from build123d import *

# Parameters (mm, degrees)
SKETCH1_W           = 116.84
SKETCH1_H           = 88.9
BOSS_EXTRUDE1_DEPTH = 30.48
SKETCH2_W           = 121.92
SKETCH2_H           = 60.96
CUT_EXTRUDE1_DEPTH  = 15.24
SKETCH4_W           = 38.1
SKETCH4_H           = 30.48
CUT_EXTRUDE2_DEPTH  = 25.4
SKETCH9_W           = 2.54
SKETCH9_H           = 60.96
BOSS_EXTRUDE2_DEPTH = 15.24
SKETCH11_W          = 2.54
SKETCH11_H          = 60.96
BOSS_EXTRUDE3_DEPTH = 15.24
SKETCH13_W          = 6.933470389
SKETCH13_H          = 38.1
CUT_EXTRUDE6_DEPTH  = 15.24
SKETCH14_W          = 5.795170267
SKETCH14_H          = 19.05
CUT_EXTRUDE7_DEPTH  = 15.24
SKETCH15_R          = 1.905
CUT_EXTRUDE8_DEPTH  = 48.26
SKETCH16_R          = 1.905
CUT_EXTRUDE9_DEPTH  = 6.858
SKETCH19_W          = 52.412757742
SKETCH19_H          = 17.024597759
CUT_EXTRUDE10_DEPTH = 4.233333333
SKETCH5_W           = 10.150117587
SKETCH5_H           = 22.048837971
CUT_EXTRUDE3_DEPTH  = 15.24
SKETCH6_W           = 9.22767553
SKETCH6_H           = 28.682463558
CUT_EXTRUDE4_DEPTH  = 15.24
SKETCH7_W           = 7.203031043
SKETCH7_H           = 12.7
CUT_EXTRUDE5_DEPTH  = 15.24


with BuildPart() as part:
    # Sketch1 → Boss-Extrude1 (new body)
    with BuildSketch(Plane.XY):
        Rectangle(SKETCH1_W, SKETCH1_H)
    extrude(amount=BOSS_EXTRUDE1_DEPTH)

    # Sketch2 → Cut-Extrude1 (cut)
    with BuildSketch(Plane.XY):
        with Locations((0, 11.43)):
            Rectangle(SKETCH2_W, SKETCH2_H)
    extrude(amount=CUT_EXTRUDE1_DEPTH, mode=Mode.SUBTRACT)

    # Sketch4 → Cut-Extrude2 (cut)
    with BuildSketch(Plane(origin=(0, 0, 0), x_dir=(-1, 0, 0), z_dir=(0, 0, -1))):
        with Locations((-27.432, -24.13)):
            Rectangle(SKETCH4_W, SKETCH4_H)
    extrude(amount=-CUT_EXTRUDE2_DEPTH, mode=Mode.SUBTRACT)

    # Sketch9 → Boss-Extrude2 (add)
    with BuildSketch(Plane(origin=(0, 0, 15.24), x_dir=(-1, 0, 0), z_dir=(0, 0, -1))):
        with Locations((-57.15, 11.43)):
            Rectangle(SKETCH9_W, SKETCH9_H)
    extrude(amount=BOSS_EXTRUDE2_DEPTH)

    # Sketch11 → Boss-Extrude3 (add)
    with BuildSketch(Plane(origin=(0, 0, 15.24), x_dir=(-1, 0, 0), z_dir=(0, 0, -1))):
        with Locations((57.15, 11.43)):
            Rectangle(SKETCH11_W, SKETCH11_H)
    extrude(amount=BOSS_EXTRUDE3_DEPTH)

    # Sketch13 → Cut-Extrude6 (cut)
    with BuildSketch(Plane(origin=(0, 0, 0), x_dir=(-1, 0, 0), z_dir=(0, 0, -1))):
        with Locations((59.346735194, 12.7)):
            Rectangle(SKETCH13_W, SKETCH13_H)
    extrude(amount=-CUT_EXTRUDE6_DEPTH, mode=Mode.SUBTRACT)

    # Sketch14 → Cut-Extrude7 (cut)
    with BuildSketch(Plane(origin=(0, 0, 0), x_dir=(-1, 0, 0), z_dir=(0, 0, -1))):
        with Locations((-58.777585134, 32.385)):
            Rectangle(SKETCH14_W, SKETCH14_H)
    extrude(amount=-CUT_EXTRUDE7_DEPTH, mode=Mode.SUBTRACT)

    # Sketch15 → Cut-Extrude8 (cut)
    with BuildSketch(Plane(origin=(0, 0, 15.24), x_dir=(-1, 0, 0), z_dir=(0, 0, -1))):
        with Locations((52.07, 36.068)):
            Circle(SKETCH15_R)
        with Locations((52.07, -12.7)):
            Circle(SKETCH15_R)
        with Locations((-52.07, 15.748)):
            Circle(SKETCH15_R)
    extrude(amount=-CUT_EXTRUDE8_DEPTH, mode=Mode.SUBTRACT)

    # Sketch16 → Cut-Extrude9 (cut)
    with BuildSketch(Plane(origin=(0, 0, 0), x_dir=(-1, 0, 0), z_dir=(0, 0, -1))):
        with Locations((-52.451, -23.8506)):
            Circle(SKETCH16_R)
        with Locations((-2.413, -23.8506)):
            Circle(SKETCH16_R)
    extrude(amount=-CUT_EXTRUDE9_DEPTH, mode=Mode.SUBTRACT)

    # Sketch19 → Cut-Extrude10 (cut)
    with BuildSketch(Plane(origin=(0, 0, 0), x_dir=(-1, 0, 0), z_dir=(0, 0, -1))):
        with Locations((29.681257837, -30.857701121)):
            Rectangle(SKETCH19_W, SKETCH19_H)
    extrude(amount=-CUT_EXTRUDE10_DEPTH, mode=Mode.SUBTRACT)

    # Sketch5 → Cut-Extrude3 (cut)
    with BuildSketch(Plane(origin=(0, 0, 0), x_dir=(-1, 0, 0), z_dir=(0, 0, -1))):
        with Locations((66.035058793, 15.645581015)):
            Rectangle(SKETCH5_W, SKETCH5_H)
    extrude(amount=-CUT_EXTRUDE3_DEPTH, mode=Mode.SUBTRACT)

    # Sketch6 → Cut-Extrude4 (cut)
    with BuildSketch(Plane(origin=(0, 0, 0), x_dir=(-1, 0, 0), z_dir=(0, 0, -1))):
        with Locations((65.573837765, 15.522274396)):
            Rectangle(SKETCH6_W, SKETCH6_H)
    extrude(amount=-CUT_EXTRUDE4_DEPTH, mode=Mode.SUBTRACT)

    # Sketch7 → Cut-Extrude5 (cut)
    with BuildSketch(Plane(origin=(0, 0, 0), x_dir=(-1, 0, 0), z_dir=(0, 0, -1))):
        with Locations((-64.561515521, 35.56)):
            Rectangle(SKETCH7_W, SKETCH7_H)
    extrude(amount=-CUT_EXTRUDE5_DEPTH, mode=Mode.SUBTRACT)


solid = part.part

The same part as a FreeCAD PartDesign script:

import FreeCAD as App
import Part
import Sketcher

V = App.Vector
Q = App.Units.Quantity

doc = App.newDocument("Part")
body = doc.addObject("PartDesign::Body", "Body")

sketch1 = body.newObject("Sketcher::SketchObject", "Sketch")
sketch1.AttachmentSupport = (doc.getObject("XY_Plane"), [""])
sketch1.MapMode = "FlatFace"
sketch1.addGeometry(Part.LineSegment(V(-58, 44, 0), V(-58, -44, 0)), False)
sketch1.addGeometry(Part.LineSegment(V(-58, -44, 0), V(58, -44, 0)), False)
sketch1.addGeometry(Part.LineSegment(V(58, -44, 0), V(58, 44, 0)), False)
sketch1.addGeometry(Part.LineSegment(V(58, 44, 0), V(-58, 44, 0)), False)
sketch1.addConstraint(Sketcher.Constraint("Coincident", 0, 2, 1, 1))
sketch1.addConstraint(Sketcher.Constraint("Coincident", 1, 2, 2, 1))
sketch1.addConstraint(Sketcher.Constraint("Coincident", 2, 2, 3, 1))
sketch1.addConstraint(Sketcher.Constraint("Coincident", 3, 2, 0, 1))
sketch1.addConstraint(Sketcher.Constraint("Vertical", 0))
sketch1.addConstraint(Sketcher.Constraint("Horizontal", 1))
sketch1.addConstraint(Sketcher.Constraint("Vertical", 2))
sketch1.addConstraint(Sketcher.Constraint("Horizontal", 3))
sketch1.addConstraint(Sketcher.Constraint("Symmetric", 0, 2, 2, 2, -1, 1))
sketch1.addConstraint(Sketcher.Constraint("DistanceX", 1, 1, 1, 2, Q("4.6 in")))
sketch1.addConstraint(Sketcher.Constraint("DistanceY", 0, 2, 0, 1, Q("3.5 in")))
pad1 = body.newObject("PartDesign::Pad", "Pad")
pad1.Profile = sketch1
pad1.Length = Q("1.2 in")

sketch2 = body.newObject("Sketcher::SketchObject", "Sketch001")
sketch2.AttachmentSupport = (doc.getObject("XY_Plane"), [""])
sketch2.MapMode = "FlatFace"
sketch2.addGeometry(Part.LineSegment(V(-61, 42, 0), V(-61, -19, 0)), False)
sketch2.addGeometry(Part.LineSegment(V(-61, -19, 0), V(61, -19, 0)), False)
sketch2.addGeometry(Part.LineSegment(V(61, -19, 0), V(61, 42, 0)), False)
sketch2.addGeometry(Part.LineSegment(V(61, 42, 0), V(-61, 42, 0)), False)
sketch2.addConstraint(Sketcher.Constraint("Coincident", 0, 2, 1, 1))
sketch2.addConstraint(Sketcher.Constraint("Coincident", 1, 2, 2, 1))
sketch2.addConstraint(Sketcher.Constraint("Coincident", 2, 2, 3, 1))
sketch2.addConstraint(Sketcher.Constraint("Coincident", 3, 2, 0, 1))
sketch2.addConstraint(Sketcher.Constraint("Vertical", 0))
sketch2.addConstraint(Sketcher.Constraint("Horizontal", 1))
sketch2.addConstraint(Sketcher.Constraint("Vertical", 2))
sketch2.addConstraint(Sketcher.Constraint("Horizontal", 3))
sketch2.addConstraint(Sketcher.Constraint("DistanceX", 1, 1, 1, 2, Q("4.8 in")))
sketch2.addConstraint(Sketcher.Constraint("DistanceY", 0, 2, 0, 1, Q("2.4 in")))
sketch2.addConstraint(Sketcher.Constraint("DistanceX", 0, 2, -1, 1, Q("2.4 in")))
sketch2.addConstraint(Sketcher.Constraint("DistanceY", 0, 2, -1, 1, Q("0.75 in")))
pocket1 = body.newObject("PartDesign::Pocket", "Pocket")
pocket1.Profile = sketch2
pocket1.Length = Q("0.6 in")
pocket1.Reversed = True

sketch3 = body.newObject("Sketcher::SketchObject", "Sketch002")
sketch3.AttachmentSupport = (doc.getObject("XY_Plane"), [""])
sketch3.MapMode = "FlatFace"
sketch3.addGeometry(Part.LineSegment(V(46, -9, 0), V(46, -39, 0)), False)
sketch3.addGeometry(Part.LineSegment(V(46, -39, 0), V(8, -39, 0)), False)
sketch3.addGeometry(Part.LineSegment(V(8, -39, 0), V(8, -9, 0)), False)
sketch3.addGeometry(Part.LineSegment(V(8, -9, 0), V(46, -9, 0)), False)
sketch3.addConstraint(Sketcher.Constraint("Coincident", 0, 2, 1, 1))
sketch3.addConstraint(Sketcher.Constraint("Coincident", 1, 2, 2, 1))
sketch3.addConstraint(Sketcher.Constraint("Coincident", 2, 2, 3, 1))
sketch3.addConstraint(Sketcher.Constraint("Coincident", 3, 2, 0, 1))
sketch3.addConstraint(Sketcher.Constraint("Vertical", 0))
sketch3.addConstraint(Sketcher.Constraint("Horizontal", 1))
sketch3.addConstraint(Sketcher.Constraint("Vertical", 2))
sketch3.addConstraint(Sketcher.Constraint("Horizontal", 3))
sketch3.addConstraint(Sketcher.Constraint("DistanceX", 1, 2, 1, 1, Q("1.5 in")))
sketch3.addConstraint(Sketcher.Constraint("DistanceY", 0, 2, 0, 1, Q("1.2 in")))
sketch3.addConstraint(Sketcher.Constraint("DistanceX", -1, 1, 0, 2, Q("1.83 in")))
sketch3.addConstraint(Sketcher.Constraint("DistanceY", 0, 2, -1, 1, Q("1.55 in")))
pocket2 = body.newObject("PartDesign::Pocket", "Pocket001")
pocket2.Profile = sketch3
pocket2.Length = Q("1 in")
pocket2.Reversed = True

sketch4 = body.newObject("Sketcher::SketchObject", "Sketch003")
sketch4.AttachmentSupport = (doc.getObject("XY_Plane"), [""])
sketch4.MapMode = "FlatFace"
sketch4.AttachmentOffset = App.Placement(V(0, 0, 0.6 * 25.4), App.Rotation())
sketch4.addGeometry(Part.LineSegment(V(58.4, 41.9, 0), V(58.4, -19.1, 0)), False)
sketch4.addGeometry(Part.LineSegment(V(58.4, -19.1, 0), V(55.9, -19.1, 0)), False)
sketch4.addGeometry(Part.LineSegment(V(55.9, -19.1, 0), V(55.9, 41.9, 0)), False)
sketch4.addGeometry(Part.LineSegment(V(55.9, 41.9, 0), V(58.4, 41.9, 0)), False)
sketch4.addConstraint(Sketcher.Constraint("Coincident", 0, 2, 1, 1))
sketch4.addConstraint(Sketcher.Constraint("Coincident", 1, 2, 2, 1))
sketch4.addConstraint(Sketcher.Constraint("Coincident", 2, 2, 3, 1))
sketch4.addConstraint(Sketcher.Constraint("Coincident", 3, 2, 0, 1))
sketch4.addConstraint(Sketcher.Constraint("Vertical", 0))
sketch4.addConstraint(Sketcher.Constraint("Horizontal", 1))
sketch4.addConstraint(Sketcher.Constraint("Vertical", 2))
sketch4.addConstraint(Sketcher.Constraint("Horizontal", 3))
sketch4.addConstraint(Sketcher.Constraint("DistanceX", 1, 2, 1, 1, Q("0.1 in")))
sketch4.addConstraint(Sketcher.Constraint("DistanceY", 0, 2, 0, 1, Q("2.4 in")))
sketch4.addConstraint(Sketcher.Constraint("DistanceX", -1, 1, 0, 2, Q("2.3 in")))
sketch4.addConstraint(Sketcher.Constraint("DistanceY", 0, 2, -1, 1, Q("0.75 in")))
pad2 = body.newObject("PartDesign::Pad", "Pad001")
pad2.Profile = sketch4
pad2.Length = Q("0.6 in")
pad2.Reversed = True

sketch5 = body.newObject("Sketcher::SketchObject", "Sketch004")
sketch5.AttachmentSupport = (doc.getObject("XY_Plane"), [""])
sketch5.MapMode = "FlatFace"
sketch5.AttachmentOffset = App.Placement(V(0, 0, 0.6 * 25.4), App.Rotation())
sketch5.addGeometry(Part.LineSegment(V(-55.9, 41.9, 0), V(-55.9, -19.1, 0)), False)
sketch5.addGeometry(Part.LineSegment(V(-55.9, -19.1, 0), V(-58.4, -19.1, 0)), False)
sketch5.addGeometry(Part.LineSegment(V(-58.4, -19.1, 0), V(-58.4, 41.9, 0)), False)
sketch5.addGeometry(Part.LineSegment(V(-58.4, 41.9, 0), V(-55.9, 41.9, 0)), False)
sketch5.addConstraint(Sketcher.Constraint("Coincident", 0, 2, 1, 1))
sketch5.addConstraint(Sketcher.Constraint("Coincident", 1, 2, 2, 1))
sketch5.addConstraint(Sketcher.Constraint("Coincident", 2, 2, 3, 1))
sketch5.addConstraint(Sketcher.Constraint("Coincident", 3, 2, 0, 1))
sketch5.addConstraint(Sketcher.Constraint("Vertical", 0))
sketch5.addConstraint(Sketcher.Constraint("Horizontal", 1))
sketch5.addConstraint(Sketcher.Constraint("Vertical", 2))
sketch5.addConstraint(Sketcher.Constraint("Horizontal", 3))
sketch5.addConstraint(Sketcher.Constraint("DistanceX", 1, 2, 1, 1, Q("0.1 in")))
sketch5.addConstraint(Sketcher.Constraint("DistanceY", 0, 2, 0, 1, Q("2.4 in")))
sketch5.addConstraint(Sketcher.Constraint("DistanceX", 0, 2, -1, 1, Q("2.2 in")))
sketch5.addConstraint(Sketcher.Constraint("DistanceY", 0, 2, -1, 1, Q("0.75 in")))
pad3 = body.newObject("PartDesign::Pad", "Pad002")
pad3.Profile = sketch5
pad3.Length = Q("0.6 in")
pad3.Reversed = True

sketch6 = body.newObject("Sketcher::SketchObject", "Sketch005")
sketch6.AttachmentSupport = (doc.getObject("XY_Plane"), [""])
sketch6.MapMode = "FlatFace"
sketch6.addGeometry(Part.LineSegment(V(-56, 32, 0), V(-56, -6, 0)), False)
sketch6.addGeometry(Part.LineSegment(V(-56, -6, 0), V(-63, -6, 0)), False)
sketch6.addGeometry(Part.LineSegment(V(-63, -6, 0), V(-63, 32, 0)), False)
sketch6.addGeometry(Part.LineSegment(V(-63, 32, 0), V(-56, 32, 0)), False)
sketch6.addConstraint(Sketcher.Constraint("Coincident", 0, 2, 1, 1))
sketch6.addConstraint(Sketcher.Constraint("Coincident", 1, 2, 2, 1))
sketch6.addConstraint(Sketcher.Constraint("Coincident", 2, 2, 3, 1))
sketch6.addConstraint(Sketcher.Constraint("Coincident", 3, 2, 0, 1))
sketch6.addConstraint(Sketcher.Constraint("Vertical", 0))
sketch6.addConstraint(Sketcher.Constraint("Horizontal", 1))
sketch6.addConstraint(Sketcher.Constraint("Vertical", 2))
sketch6.addConstraint(Sketcher.Constraint("Horizontal", 3))
sketch6.addConstraint(Sketcher.Constraint("DistanceY", 0, 2, 0, 1, Q("1.5 in")))
sketch6.addConstraint(Sketcher.Constraint("DistanceX", 0, 2, -1, 1, Q("2.2 in")))
sketch6.addConstraint(Sketcher.Constraint("DistanceY", 0, 2, -1, 1, Q("0.25 in")))
sketch6.addConstraint(Sketcher.Constraint("DistanceX", 1, 2, 1, 1, 6.93347))
pocket3 = body.newObject("PartDesign::Pocket", "Pocket002")
pocket3.Profile = sketch6
pocket3.Length = Q("0.6 in")
pocket3.Reversed = True

sketch7 = body.newObject("Sketcher::SketchObject", "Sketch006")
sketch7.AttachmentSupport = (doc.getObject("XY_Plane"), [""])
sketch7.MapMode = "FlatFace"
sketch7.addGeometry(Part.LineSegment(V(62, 42, 0), V(62, 23, 0)), False)
sketch7.addGeometry(Part.LineSegment(V(62, 23, 0), V(56, 23, 0)), False)
sketch7.addGeometry(Part.LineSegment(V(56, 23, 0), V(56, 42, 0)), False)
sketch7.addGeometry(Part.LineSegment(V(56, 42, 0), V(62, 42, 0)), False)
sketch7.addConstraint(Sketcher.Constraint("Coincident", 0, 2, 1, 1))
sketch7.addConstraint(Sketcher.Constraint("Coincident", 1, 2, 2, 1))
sketch7.addConstraint(Sketcher.Constraint("Coincident", 2, 2, 3, 1))
sketch7.addConstraint(Sketcher.Constraint("Coincident", 3, 2, 0, 1))
sketch7.addConstraint(Sketcher.Constraint("Vertical", 0))
sketch7.addConstraint(Sketcher.Constraint("Horizontal", 1))
sketch7.addConstraint(Sketcher.Constraint("Vertical", 2))
sketch7.addConstraint(Sketcher.Constraint("Horizontal", 3))
sketch7.addConstraint(Sketcher.Constraint("DistanceY", 0, 2, 0, 1, Q("0.75 in")))
sketch7.addConstraint(Sketcher.Constraint("DistanceY", -1, 1, 0, 2, Q("0.9 in")))
sketch7.addConstraint(Sketcher.Constraint("DistanceX", -1, 1, 1, 2, Q("2.2 in")))
sketch7.addConstraint(Sketcher.Constraint("DistanceX", 1, 2, 1, 1, 5.79517))
pocket4 = body.newObject("PartDesign::Pocket", "Pocket003")
pocket4.Profile = sketch7
pocket4.Length = Q("0.6 in")
pocket4.Reversed = True

sketch8 = body.newObject("Sketcher::SketchObject", "Sketch007")
sketch8.AttachmentSupport = (doc.getObject("XY_Plane"), [""])
sketch8.MapMode = "FlatFace"
sketch8.AttachmentOffset = App.Placement(V(0, 0, 0.6 * 25.4), App.Rotation())
sketch8.addGeometry(Part.Circle(V(-52.1, 36.1, 0), V(0, 0, 1), 1.9), False)
sketch8.addGeometry(Part.Circle(V(-52.1, -12.7, 0), V(0, 0, 1), 1.9), False)
sketch8.addGeometry(Part.Circle(V(52.1, 15.7, 0), V(0, 0, 1), 1.9), False)
sketch8.addConstraint(Sketcher.Constraint("Equal", 0, 1))
sketch8.addConstraint(Sketcher.Constraint("Equal", 1, 2))
sketch8.addConstraint(Sketcher.Constraint("Vertical", 0, 3, 1, 3))
sketch8.addConstraint(Sketcher.Constraint("Diameter", 0, Q("0.15 in")))
sketch8.addConstraint(Sketcher.Constraint("DistanceY", 1, 3, -1, 1, Q("0.5 in")))
sketch8.addConstraint(Sketcher.Constraint("DistanceX", 0, 3, 2, 3, Q("4.1 in")))
sketch8.addConstraint(Sketcher.Constraint("DistanceY", 2, 3, 0, 3, Q("0.8 in")))
sketch8.addConstraint(Sketcher.Constraint("DistanceX", 0, 3, -1, 1, Q("2.05 in")))
sketch8.addConstraint(Sketcher.Constraint("DistanceY", -1, 1, 0, 3, Q("1.42 in")))
pocket5 = body.newObject("PartDesign::Pocket", "Pocket004")
pocket5.Profile = sketch8
pocket5.Length = Q("1.9 in")
pocket5.Reversed = True

sketch9 = body.newObject("Sketcher::SketchObject", "Sketch008")
sketch9.AttachmentSupport = (doc.getObject("XY_Plane"), [""])
sketch9.MapMode = "FlatFace"
sketch9.addGeometry(Part.Circle(V(52.5, -23.9, 0), V(0, 0, 1), 1.9), False)
sketch9.addGeometry(Part.Circle(V(2.4, -23.9, 0), V(0, 0, 1), 1.9), False)
sketch9.addConstraint(Sketcher.Constraint("Equal", 0, 1))
sketch9.addConstraint(Sketcher.Constraint("Horizontal", 0, 3, 1, 3))
sketch9.addConstraint(Sketcher.Constraint("Diameter", 0, Q("0.15 in")))
sketch9.addConstraint(Sketcher.Constraint("DistanceX", 1, 3, 0, 3, Q("1.97 in")))
sketch9.addConstraint(Sketcher.Constraint("DistanceX", -1, 1, 0, 3, Q("2.065 in")))
sketch9.addConstraint(Sketcher.Constraint("DistanceY", 0, 3, -1, 1, Q("0.939 in")))
pocket6 = body.newObject("PartDesign::Pocket", "Pocket005")
pocket6.Profile = sketch9
pocket6.Length = Q("0.27 in")
pocket6.Reversed = True

sketch10 = body.newObject("Sketcher::SketchObject", "Sketch009")
sketch10.AttachmentSupport = (doc.getObject("XY_Plane"), [""])
sketch10.MapMode = "FlatFace"
sketch10.addGeometry(Part.LineSegment(V(-3, -22, 0), V(-3, -39, 0)), False)
sketch10.addGeometry(Part.LineSegment(V(-3, -39, 0), V(-56, -39, 0)), False)
sketch10.addGeometry(Part.LineSegment(V(-56, -39, 0), V(-56, -22, 0)), False)
sketch10.addGeometry(Part.LineSegment(V(-56, -22, 0), V(-3, -22, 0)), False)
sketch10.addConstraint(Sketcher.Constraint("Coincident", 0, 2, 1, 1))
sketch10.addConstraint(Sketcher.Constraint("Coincident", 1, 2, 2, 1))
sketch10.addConstraint(Sketcher.Constraint("Coincident", 2, 2, 3, 1))
sketch10.addConstraint(Sketcher.Constraint("Coincident", 3, 2, 0, 1))
sketch10.addConstraint(Sketcher.Constraint("Vertical", 0))
sketch10.addConstraint(Sketcher.Constraint("Horizontal", 1))
sketch10.addConstraint(Sketcher.Constraint("Vertical", 2))
sketch10.addConstraint(Sketcher.Constraint("Horizontal", 3))
sketch10.addConstraint(Sketcher.Constraint("DistanceY", 0, 2, -1, 1, Q("1.55 in")))
sketch10.addConstraint(Sketcher.Constraint("DistanceX", 1, 2, 1, 1, 52.412758))
sketch10.addConstraint(Sketcher.Constraint("DistanceY", 0, 2, 0, 1, 17.024598))
sketch10.addConstraint(Sketcher.Constraint("DistanceX", 0, 2, -1, 1, 3.474879))
pocket7 = body.newObject("PartDesign::Pocket", "Pocket006")
pocket7.Profile = sketch10
pocket7.Length = 4.233333
pocket7.Reversed = True

sketch11 = body.newObject("Sketcher::SketchObject", "Sketch010")
sketch11.AttachmentSupport = (doc.getObject("XY_Plane"), [""])
sketch11.MapMode = "FlatFace"
sketch11.addGeometry(Part.LineSegment(V(-61, 27, 0), V(-61, 5, 0)), False)
sketch11.addGeometry(Part.LineSegment(V(-61, 5, 0), V(-71, 5, 0)), False)
sketch11.addGeometry(Part.LineSegment(V(-71, 5, 0), V(-71, 27, 0)), False)
sketch11.addGeometry(Part.LineSegment(V(-71, 27, 0), V(-61, 27, 0)), False)
sketch11.addConstraint(Sketcher.Constraint("Coincident", 0, 2, 1, 1))
sketch11.addConstraint(Sketcher.Constraint("Coincident", 1, 2, 2, 1))
sketch11.addConstraint(Sketcher.Constraint("Coincident", 2, 2, 3, 1))
sketch11.addConstraint(Sketcher.Constraint("Coincident", 3, 2, 0, 1))
sketch11.addConstraint(Sketcher.Constraint("Vertical", 0))
sketch11.addConstraint(Sketcher.Constraint("Horizontal", 1))
sketch11.addConstraint(Sketcher.Constraint("Vertical", 2))
sketch11.addConstraint(Sketcher.Constraint("Horizontal", 3))
sketch11.addConstraint(Sketcher.Constraint("DistanceX", 0, 2, -1, 1, Q("2.4 in")))
sketch11.addConstraint(Sketcher.Constraint("DistanceY", -1, 1, 2, 2, Q("1.05 in")))
sketch11.addConstraint(Sketcher.Constraint("DistanceX", 1, 2, 1, 1, 10.150118))
sketch11.addConstraint(Sketcher.Constraint("DistanceY", 0, 2, 0, 1, 22.048838))
pocket8 = body.newObject("PartDesign::Pocket", "Pocket007")
pocket8.Profile = sketch11
pocket8.Length = Q("0.6 in")
pocket8.Reversed = True

sketch12 = body.newObject("Sketcher::SketchObject", "Sketch011")
sketch12.AttachmentSupport = (doc.getObject("XY_Plane"), [""])
sketch12.MapMode = "FlatFace"
sketch12.addGeometry(Part.LineSegment(V(-61, 30, 0), V(-61, 1, 0)), False)
sketch12.addGeometry(Part.LineSegment(V(-61, 1, 0), V(-70, 1, 0)), False)
sketch12.addGeometry(Part.LineSegment(V(-70, 1, 0), V(-70, 30, 0)), False)
sketch12.addGeometry(Part.LineSegment(V(-70, 30, 0), V(-61, 30, 0)), False)
sketch12.addConstraint(Sketcher.Constraint("Coincident", 0, 2, 1, 1))
sketch12.addConstraint(Sketcher.Constraint("Coincident", 1, 2, 2, 1))
sketch12.addConstraint(Sketcher.Constraint("Coincident", 2, 2, 3, 1))
sketch12.addConstraint(Sketcher.Constraint("Coincident", 3, 2, 0, 1))
sketch12.addConstraint(Sketcher.Constraint("Vertical", 0))
sketch12.addConstraint(Sketcher.Constraint("Horizontal", 1))
sketch12.addConstraint(Sketcher.Constraint("Vertical", 2))
sketch12.addConstraint(Sketcher.Constraint("Horizontal", 3))
sketch12.addConstraint(Sketcher.Constraint("DistanceX", 0, 2, -1, 1, Q("2.4 in")))
sketch12.addConstraint(Sketcher.Constraint("DistanceX", 1, 2, 1, 1, 9.227676))
sketch12.addConstraint(Sketcher.Constraint("DistanceY", 0, 2, 0, 1, 28.682464))
sketch12.addConstraint(Sketcher.Constraint("DistanceY", -1, 1, 0, 2, 1.181043))
pocket9 = body.newObject("PartDesign::Pocket", "Pocket008")
pocket9.Profile = sketch12
pocket9.Length = Q("0.6 in")
pocket9.Reversed = True

sketch13 = body.newObject("Sketcher::SketchObject", "Sketch012")
sketch13.AttachmentSupport = (doc.getObject("XY_Plane"), [""])
sketch13.MapMode = "FlatFace"
sketch13.addGeometry(Part.LineSegment(V(68, 42, 0), V(68, 29, 0)), False)
sketch13.addGeometry(Part.LineSegment(V(68, 29, 0), V(61, 29, 0)), False)
sketch13.addGeometry(Part.LineSegment(V(61, 29, 0), V(61, 42, 0)), False)
sketch13.addGeometry(Part.LineSegment(V(61, 42, 0), V(68, 42, 0)), False)
sketch13.addConstraint(Sketcher.Constraint("Coincident", 0, 2, 1, 1))
sketch13.addConstraint(Sketcher.Constraint("Coincident", 1, 2, 2, 1))
sketch13.addConstraint(Sketcher.Constraint("Coincident", 2, 2, 3, 1))
sketch13.addConstraint(Sketcher.Constraint("Coincident", 3, 2, 0, 1))
sketch13.addConstraint(Sketcher.Constraint("Vertical", 0))
sketch13.addConstraint(Sketcher.Constraint("Horizontal", 1))
sketch13.addConstraint(Sketcher.Constraint("Vertical", 2))
sketch13.addConstraint(Sketcher.Constraint("Horizontal", 3))
sketch13.addConstraint(Sketcher.Constraint("DistanceY", 0, 2, 0, 1, Q("0.5 in")))
sketch13.addConstraint(Sketcher.Constraint("DistanceX", -1, 1, 1, 2, Q("2.4 in")))
sketch13.addConstraint(Sketcher.Constraint("DistanceY", -1, 1, 0, 2, Q("1.15 in")))
sketch13.addConstraint(Sketcher.Constraint("DistanceX", 1, 2, 1, 1, 7.203031))
pocket10 = body.newObject("PartDesign::Pocket", "Pocket009")
pocket10.Profile = sketch13
pocket10.Length = Q("0.6 in")
pocket10.Reversed = True

doc.recompute()
